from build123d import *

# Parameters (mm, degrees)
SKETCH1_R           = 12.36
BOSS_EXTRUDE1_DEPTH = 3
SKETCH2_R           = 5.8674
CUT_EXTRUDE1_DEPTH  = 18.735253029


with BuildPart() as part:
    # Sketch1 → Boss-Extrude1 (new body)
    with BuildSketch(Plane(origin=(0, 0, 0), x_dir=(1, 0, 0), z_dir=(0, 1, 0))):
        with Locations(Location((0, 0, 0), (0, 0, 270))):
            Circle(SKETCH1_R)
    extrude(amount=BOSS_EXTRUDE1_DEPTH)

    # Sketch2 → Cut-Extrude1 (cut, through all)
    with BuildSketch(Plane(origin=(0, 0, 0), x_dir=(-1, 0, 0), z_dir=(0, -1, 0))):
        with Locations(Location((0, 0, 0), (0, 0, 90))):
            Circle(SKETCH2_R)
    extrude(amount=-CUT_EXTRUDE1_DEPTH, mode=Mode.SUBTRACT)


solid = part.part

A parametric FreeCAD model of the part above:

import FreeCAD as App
import Part
import Sketcher

doc = App.newDocument("Part")
body = doc.addObject("PartDesign::Body", "Body")

# Sketch on XZ plane
sketch1 = doc.addObject("Sketcher::SketchObject", "Sketch")
body.addObject(sketch1)
sketch1.AttachmentSupport = (doc.XZ_Plane, [""])
sketch1.MapMode = "FlatFace"
sketch1.addGeometry(Part.Circle(App.Vector(0, 0, 0), App.Vector(0, 0, 1), 12), False)
sketch1.addConstraint(Sketcher.Constraint("Coincident", 0, 3, -1, 1))
sketch1.addConstraint(Sketcher.Constraint("Diameter", 0, 24.72))
pad1 = doc.addObject("PartDesign::Pad", "Pad")
body.addObject(pad1)
pad1.Profile = sketch1
pad1.Length = 3
pad1.Reversed = True

# Sketch on XZ plane
sketch2 = doc.addObject("Sketcher::SketchObject", "Sketch001")
body.addObject(sketch2)
sketch2.AttachmentSupport = (doc.XZ_Plane, [""])
sketch2.MapMode = "FlatFace"
sketch2.addGeometry(Part.Circle(App.Vector(0, 0, 0), App.Vector(0, 0, 1), 6), False)
sketch2.addConstraint(Sketcher.Constraint("Coincident", 0, 3, -1, 1))
sketch2.addConstraint(Sketcher.Constraint("Diameter", 0, 11.7348))
pocket1 = doc.addObject("PartDesign::Pocket", "Pocket")
body.addObject(pocket1)
pocket1.Profile = sketch2
pocket1.Type = "ThroughAll"

doc.recompute()
